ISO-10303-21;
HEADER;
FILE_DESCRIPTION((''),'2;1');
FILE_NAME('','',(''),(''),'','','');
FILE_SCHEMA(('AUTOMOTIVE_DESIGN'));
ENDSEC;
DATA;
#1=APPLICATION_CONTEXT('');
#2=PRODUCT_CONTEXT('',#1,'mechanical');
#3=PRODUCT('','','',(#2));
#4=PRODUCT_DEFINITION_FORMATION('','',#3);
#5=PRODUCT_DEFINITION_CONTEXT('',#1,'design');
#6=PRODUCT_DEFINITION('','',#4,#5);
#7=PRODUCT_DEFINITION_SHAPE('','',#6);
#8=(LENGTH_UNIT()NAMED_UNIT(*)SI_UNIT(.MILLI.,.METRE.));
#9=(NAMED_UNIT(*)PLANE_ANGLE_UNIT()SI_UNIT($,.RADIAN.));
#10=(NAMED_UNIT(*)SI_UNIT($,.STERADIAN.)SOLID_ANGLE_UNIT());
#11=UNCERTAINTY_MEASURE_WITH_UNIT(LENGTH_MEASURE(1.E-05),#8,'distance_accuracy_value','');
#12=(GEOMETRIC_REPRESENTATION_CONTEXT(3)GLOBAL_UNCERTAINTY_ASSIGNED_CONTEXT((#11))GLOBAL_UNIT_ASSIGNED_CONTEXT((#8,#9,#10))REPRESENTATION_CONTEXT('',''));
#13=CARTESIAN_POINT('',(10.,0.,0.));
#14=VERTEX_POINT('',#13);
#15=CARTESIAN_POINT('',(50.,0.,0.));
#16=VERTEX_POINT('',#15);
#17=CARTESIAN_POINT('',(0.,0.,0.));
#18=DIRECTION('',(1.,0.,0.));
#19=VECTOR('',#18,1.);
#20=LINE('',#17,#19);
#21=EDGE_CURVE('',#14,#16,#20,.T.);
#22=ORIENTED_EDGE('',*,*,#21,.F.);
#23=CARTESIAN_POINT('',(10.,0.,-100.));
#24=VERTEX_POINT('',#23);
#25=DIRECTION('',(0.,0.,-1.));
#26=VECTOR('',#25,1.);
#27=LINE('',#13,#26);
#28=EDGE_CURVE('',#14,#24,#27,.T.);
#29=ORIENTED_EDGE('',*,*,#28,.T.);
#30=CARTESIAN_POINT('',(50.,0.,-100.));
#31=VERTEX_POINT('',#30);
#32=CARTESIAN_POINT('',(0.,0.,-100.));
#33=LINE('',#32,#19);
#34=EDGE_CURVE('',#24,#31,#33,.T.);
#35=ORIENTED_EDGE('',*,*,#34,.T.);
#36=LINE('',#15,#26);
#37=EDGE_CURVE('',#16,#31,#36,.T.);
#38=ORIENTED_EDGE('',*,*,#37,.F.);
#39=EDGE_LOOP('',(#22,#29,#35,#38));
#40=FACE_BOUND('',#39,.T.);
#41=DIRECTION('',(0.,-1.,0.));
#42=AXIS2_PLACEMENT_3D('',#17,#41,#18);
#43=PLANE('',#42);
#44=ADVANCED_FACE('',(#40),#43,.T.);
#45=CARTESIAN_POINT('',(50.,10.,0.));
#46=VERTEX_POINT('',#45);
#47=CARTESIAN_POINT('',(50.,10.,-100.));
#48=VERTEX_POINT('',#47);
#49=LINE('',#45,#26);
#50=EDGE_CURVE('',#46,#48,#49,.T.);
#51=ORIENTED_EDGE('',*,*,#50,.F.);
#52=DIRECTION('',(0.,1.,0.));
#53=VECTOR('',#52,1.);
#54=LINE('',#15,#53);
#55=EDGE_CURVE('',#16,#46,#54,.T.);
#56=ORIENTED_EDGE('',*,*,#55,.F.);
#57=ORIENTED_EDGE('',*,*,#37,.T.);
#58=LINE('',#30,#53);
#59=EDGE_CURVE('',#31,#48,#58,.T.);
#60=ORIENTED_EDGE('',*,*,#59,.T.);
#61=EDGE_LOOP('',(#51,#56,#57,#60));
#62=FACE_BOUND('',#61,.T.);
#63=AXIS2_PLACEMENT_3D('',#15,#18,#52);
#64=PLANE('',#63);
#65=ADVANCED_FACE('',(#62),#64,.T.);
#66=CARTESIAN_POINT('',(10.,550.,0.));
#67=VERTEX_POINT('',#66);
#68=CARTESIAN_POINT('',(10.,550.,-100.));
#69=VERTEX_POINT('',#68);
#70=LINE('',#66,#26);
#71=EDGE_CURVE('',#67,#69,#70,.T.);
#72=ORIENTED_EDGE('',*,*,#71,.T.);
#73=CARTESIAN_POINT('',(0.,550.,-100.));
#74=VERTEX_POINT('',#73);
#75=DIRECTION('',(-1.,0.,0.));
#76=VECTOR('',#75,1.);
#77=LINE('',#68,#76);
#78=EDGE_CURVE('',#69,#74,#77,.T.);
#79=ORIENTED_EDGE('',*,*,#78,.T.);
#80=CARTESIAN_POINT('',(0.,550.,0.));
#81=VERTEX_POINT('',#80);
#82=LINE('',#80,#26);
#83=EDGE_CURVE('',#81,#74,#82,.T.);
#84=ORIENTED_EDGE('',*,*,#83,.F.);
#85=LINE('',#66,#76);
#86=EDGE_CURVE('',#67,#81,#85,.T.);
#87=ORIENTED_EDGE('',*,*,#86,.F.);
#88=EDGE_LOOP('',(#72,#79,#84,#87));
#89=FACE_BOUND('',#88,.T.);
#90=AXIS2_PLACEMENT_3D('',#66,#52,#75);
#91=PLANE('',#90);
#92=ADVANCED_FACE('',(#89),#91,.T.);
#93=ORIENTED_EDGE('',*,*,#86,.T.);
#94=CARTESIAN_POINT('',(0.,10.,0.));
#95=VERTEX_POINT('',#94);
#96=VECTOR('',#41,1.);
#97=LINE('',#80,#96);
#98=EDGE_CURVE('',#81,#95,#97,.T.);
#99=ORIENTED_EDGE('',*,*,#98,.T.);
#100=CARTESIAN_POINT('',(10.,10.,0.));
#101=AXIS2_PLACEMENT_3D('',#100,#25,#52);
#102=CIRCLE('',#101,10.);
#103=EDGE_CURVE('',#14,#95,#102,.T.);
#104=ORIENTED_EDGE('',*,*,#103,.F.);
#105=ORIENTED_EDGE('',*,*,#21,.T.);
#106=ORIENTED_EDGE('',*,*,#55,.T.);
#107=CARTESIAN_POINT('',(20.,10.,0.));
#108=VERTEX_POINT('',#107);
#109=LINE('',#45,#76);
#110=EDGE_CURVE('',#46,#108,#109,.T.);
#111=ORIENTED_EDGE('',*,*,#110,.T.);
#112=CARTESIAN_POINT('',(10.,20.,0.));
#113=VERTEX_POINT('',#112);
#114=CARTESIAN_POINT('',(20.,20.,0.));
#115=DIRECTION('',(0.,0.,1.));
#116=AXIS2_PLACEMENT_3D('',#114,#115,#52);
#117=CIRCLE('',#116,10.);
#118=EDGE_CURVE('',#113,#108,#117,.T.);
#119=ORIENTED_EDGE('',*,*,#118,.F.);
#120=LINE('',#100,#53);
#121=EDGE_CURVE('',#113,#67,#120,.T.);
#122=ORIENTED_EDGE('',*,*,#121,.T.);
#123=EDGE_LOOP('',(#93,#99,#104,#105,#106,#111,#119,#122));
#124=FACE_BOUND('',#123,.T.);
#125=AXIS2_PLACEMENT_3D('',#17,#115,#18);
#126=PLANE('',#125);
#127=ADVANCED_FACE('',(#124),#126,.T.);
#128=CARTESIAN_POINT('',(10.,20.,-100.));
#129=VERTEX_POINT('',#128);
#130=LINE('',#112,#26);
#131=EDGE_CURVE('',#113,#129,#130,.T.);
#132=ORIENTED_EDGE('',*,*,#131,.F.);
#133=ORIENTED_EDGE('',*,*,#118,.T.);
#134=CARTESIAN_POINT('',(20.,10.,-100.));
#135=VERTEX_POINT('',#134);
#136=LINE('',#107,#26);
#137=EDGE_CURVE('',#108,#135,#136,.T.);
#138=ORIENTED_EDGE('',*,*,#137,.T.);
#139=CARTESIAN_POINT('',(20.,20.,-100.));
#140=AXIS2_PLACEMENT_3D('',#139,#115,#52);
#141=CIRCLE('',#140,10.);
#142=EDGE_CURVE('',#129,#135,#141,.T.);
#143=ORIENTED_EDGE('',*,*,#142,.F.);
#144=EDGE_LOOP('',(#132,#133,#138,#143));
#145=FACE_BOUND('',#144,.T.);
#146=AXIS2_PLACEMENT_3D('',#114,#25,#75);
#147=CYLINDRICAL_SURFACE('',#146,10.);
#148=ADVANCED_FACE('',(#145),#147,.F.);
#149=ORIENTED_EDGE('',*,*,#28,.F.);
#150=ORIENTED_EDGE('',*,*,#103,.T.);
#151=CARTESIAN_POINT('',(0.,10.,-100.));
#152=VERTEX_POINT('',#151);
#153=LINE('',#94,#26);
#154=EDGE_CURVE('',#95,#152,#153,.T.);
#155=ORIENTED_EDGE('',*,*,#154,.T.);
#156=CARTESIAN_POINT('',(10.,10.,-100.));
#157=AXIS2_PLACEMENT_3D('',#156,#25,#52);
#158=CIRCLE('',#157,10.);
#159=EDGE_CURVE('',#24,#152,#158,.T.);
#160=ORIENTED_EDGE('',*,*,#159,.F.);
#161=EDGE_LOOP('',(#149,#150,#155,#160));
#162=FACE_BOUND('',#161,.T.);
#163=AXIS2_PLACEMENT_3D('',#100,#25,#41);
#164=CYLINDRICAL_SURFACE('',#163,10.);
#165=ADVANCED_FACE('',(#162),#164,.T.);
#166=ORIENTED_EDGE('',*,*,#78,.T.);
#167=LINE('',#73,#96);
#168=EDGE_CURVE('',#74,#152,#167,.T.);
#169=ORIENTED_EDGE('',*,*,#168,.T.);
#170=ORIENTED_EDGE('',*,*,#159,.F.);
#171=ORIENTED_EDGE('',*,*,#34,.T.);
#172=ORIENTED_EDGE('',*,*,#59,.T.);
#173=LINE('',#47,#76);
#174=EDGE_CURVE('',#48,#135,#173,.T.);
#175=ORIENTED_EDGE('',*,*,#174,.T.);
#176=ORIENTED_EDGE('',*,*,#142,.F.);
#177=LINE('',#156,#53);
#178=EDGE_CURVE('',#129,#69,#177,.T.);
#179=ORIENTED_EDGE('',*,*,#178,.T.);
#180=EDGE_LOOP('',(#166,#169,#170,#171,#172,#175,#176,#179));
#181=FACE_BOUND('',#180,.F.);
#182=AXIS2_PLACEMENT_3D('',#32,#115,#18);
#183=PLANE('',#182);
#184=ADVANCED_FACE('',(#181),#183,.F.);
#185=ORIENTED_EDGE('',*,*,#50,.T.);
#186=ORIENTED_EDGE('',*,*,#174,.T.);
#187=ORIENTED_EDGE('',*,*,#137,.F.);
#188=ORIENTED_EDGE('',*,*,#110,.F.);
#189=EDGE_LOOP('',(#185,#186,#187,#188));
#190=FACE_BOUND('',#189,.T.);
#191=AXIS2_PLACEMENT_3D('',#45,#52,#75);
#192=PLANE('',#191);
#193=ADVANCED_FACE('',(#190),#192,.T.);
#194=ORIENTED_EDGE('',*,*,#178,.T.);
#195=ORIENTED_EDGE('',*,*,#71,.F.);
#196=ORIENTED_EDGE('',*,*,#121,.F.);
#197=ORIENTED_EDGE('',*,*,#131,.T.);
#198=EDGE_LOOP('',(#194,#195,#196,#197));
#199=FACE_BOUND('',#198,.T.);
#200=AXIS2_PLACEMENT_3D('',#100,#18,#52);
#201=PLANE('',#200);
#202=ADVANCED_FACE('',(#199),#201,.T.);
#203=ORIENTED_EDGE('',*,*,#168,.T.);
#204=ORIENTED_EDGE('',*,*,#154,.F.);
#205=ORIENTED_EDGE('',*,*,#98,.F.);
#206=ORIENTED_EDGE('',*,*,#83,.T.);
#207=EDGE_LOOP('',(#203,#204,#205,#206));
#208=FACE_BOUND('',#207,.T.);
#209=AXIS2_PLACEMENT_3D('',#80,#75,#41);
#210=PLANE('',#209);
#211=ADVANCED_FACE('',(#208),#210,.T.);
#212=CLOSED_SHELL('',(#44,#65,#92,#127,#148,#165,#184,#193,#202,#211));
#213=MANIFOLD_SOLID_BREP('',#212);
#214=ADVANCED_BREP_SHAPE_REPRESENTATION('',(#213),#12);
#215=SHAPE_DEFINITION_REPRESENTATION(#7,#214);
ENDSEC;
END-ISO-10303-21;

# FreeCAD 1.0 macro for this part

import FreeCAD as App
import Part
import Sketcher
from FreeCAD import Vector


def edges_at(feature, points):
    """Names of the edges that pass closest to the given points."""
    edges = feature.Shape.Edges
    near = lambda p: min(range(len(edges)), key=lambda i: edges[i].distToShape(Part.Vertex(*p))[0])
    return sorted({f"Edge{near(p) + 1}" for p in points})

doc = App.newDocument("Part")
body = doc.addObject("PartDesign::Body", "Body")

# Sketch on XY plane
sketch1 = doc.addObject("Sketcher::SketchObject", "Sketch")
body.addObject(sketch1)
sketch1.AttachmentSupport = (doc.XY_Plane, [""])
sketch1.MapMode = "FlatFace"
sketch1.addGeometry([
    Part.LineSegment(Vector(10, 550, 0), Vector(0, 550, 0)),  # 0
    Part.LineSegment(Vector(0, 550, 0), Vector(0, 0, 0)),  # 1
    Part.LineSegment(Vector(0, 0, 0), Vector(50, 0, 0)),  # 2
    Part.LineSegment(Vector(50, 0, 0), Vector(50, 10, 0)),  # 3
    Part.LineSegment(Vector(50, 10, 0), Vector(10, 10, 0)),  # 4
    Part.LineSegment(Vector(10, 10, 0), Vector(10, 550, 0)),  # 5
], False)
sketch1.addConstraint([
    Sketcher.Constraint("Coincident", 0, 2, 1, 1),
    Sketcher.Constraint("Coincident", 1, 2, 2, 1),
    Sketcher.Constraint("Coincident", 2, 2, 3, 1),
    Sketcher.Constraint("Coincident", 3, 2, 4, 1),
    Sketcher.Constraint("Coincident", 4, 2, 5, 1),
    Sketcher.Constraint("Coincident", 5, 2, 0, 1),
    Sketcher.Constraint("Horizontal", 0),
    Sketcher.Constraint("Vertical", 1),
    Sketcher.Constraint("Horizontal", 2),
    Sketcher.Constraint("Vertical", 3),
    Sketcher.Constraint("Horizontal", 4),
    Sketcher.Constraint("Vertical", 5),
    Sketcher.Constraint("Coincident", 1, 2, -1, 1),
    Sketcher.Constraint("Equal", 0, 3),
    Sketcher.Constraint("DistanceX", 0, 2, 0, 1, 10.0),
    Sketcher.Constraint("DistanceX", 2, 1, 2, 2, 50.0),
    Sketcher.Constraint("DistanceY", 1, 2, 1, 1, 550.0),
])
pad1 = doc.addObject("PartDesign::Pad", "Pad")
body.addObject(pad1)
pad1.Profile = sketch1
pad1.Length = 100
pad1.Reversed = True
doc.recompute()

fillet = doc.addObject("PartDesign::Fillet", "Fillet")
body.addObject(fillet)
fillet.Base = (pad1, edges_at(pad1, [(10, 10, -50), (0, 0, -50)]))
fillet.Radius = 10

doc.recompute()
